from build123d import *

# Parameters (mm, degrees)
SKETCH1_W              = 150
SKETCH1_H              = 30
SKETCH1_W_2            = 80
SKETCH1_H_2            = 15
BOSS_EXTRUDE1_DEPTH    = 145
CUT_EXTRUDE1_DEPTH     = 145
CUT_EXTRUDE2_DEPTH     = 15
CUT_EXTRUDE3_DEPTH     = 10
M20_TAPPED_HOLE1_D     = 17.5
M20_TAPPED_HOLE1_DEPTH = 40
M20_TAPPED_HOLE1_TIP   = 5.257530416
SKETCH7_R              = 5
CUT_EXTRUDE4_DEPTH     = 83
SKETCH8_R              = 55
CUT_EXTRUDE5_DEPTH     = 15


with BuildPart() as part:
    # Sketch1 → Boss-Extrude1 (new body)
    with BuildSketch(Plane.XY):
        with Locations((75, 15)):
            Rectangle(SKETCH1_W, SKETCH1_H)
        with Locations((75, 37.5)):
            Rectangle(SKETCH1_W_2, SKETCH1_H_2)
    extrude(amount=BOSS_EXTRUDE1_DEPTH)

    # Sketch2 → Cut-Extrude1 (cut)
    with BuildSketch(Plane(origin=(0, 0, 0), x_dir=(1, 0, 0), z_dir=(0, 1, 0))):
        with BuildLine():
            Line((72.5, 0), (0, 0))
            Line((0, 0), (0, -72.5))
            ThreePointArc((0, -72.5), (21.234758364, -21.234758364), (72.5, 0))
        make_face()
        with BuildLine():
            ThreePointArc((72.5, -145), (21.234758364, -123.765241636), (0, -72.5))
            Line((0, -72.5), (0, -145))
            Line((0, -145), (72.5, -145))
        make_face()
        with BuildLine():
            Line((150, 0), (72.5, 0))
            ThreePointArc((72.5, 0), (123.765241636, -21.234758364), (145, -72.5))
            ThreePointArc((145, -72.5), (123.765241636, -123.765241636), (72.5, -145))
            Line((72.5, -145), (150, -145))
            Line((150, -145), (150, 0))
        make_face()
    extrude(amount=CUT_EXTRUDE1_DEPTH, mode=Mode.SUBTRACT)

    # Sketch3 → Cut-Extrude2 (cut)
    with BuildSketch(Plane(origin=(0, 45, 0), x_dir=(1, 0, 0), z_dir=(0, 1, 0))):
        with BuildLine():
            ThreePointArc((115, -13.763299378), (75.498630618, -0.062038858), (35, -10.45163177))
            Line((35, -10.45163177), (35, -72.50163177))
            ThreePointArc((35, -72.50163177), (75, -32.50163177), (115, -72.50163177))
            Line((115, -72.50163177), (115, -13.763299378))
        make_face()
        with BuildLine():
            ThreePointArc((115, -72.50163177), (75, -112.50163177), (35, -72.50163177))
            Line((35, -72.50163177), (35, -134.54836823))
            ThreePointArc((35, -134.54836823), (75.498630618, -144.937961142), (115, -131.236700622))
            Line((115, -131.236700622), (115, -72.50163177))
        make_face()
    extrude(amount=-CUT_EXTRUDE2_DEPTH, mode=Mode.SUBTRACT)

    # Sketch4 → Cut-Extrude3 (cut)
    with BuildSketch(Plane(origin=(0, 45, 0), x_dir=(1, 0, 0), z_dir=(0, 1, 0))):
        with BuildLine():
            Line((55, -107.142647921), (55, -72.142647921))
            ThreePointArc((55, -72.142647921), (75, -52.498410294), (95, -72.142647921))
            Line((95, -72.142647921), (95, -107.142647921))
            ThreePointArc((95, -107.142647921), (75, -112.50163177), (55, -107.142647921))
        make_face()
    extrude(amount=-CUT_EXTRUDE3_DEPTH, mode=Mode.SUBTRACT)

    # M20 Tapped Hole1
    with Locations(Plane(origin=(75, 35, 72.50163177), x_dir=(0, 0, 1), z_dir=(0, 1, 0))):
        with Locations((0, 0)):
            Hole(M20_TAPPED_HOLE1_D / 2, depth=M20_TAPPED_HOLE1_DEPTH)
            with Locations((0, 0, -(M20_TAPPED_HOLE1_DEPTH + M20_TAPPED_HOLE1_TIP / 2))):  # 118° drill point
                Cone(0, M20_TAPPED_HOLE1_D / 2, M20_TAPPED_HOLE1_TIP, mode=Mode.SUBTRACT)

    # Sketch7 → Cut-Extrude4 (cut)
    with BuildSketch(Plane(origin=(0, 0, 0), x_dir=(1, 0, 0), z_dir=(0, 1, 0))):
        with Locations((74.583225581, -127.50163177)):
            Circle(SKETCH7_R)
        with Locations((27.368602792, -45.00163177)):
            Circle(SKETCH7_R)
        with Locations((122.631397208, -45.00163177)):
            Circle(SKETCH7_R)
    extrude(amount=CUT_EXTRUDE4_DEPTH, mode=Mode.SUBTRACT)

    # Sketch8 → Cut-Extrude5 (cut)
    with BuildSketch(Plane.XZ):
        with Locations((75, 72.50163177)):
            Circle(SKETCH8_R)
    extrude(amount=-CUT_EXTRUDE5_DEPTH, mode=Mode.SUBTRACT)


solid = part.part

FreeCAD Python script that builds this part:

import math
import FreeCAD as App
import Part
import Sketcher

doc = App.newDocument("Part")
body = doc.addObject("PartDesign::Body", "Body")

# Sketch on XY plane
sketch1 = body.newObject("Sketcher::SketchObject", "Sketch")
sketch1.AttachmentSupport = (doc.getObject("XY_Plane"), [""])
sketch1.MapMode = "FlatFace"
sketch1.addGeometry(Part.LineSegment(App.Vector(0, 30, 0), App.Vector(0, 0, 0)), False)
sketch1.addGeometry(Part.LineSegment(App.Vector(0, 0, 0), App.Vector(150, 0, 0)), False)
sketch1.addGeometry(Part.LineSegment(App.Vector(150, 0, 0), App.Vector(150, 30, 0)), False)
sketch1.addGeometry(Part.LineSegment(App.Vector(150, 30, 0), App.Vector(115, 30, 0)), False)
sketch1.addGeometry(Part.LineSegment(App.Vector(115, 30, 0), App.Vector(115, 45, 0)), False)
sketch1.addGeometry(Part.LineSegment(App.Vector(115, 45, 0), App.Vector(35, 45, 0)), False)
sketch1.addGeometry(Part.LineSegment(App.Vector(35, 45, 0), App.Vector(35, 30, 0)), False)
sketch1.addGeometry(Part.LineSegment(App.Vector(35, 30, 0), App.Vector(0, 30, 0)), False)
sketch1.addConstraint(Sketcher.Constraint("Coincident", 0, 2, 1, 1))
sketch1.addConstraint(Sketcher.Constraint("Coincident", 1, 2, 2, 1))
sketch1.addConstraint(Sketcher.Constraint("Coincident", 2, 2, 3, 1))
sketch1.addConstraint(Sketcher.Constraint("Coincident", 3, 2, 4, 1))
sketch1.addConstraint(Sketcher.Constraint("Coincident", 4, 2, 5, 1))
sketch1.addConstraint(Sketcher.Constraint("Coincident", 5, 2, 6, 1))
sketch1.addConstraint(Sketcher.Constraint("Coincident", 6, 2, 7, 1))
sketch1.addConstraint(Sketcher.Constraint("Coincident", 7, 2, 0, 1))
sketch1.addConstraint(Sketcher.Constraint("Vertical", 0))
sketch1.addConstraint(Sketcher.Constraint("Horizontal", 1))
sketch1.addConstraint(Sketcher.Constraint("Vertical", 2))
sketch1.addConstraint(Sketcher.Constraint("Horizontal", 3))
sketch1.addConstraint(Sketcher.Constraint("Vertical", 4))
sketch1.addConstraint(Sketcher.Constraint("Horizontal", 5))
sketch1.addConstraint(Sketcher.Constraint("Vertical", 6))
sketch1.addConstraint(Sketcher.Constraint("Horizontal", 7))
sketch1.addConstraint(Sketcher.Constraint("Coincident", 0, 2, -1, 1))
sketch1.addConstraint(Sketcher.Constraint("Horizontal", 3, 2, 6, 2))
sketch1.addConstraint(Sketcher.Constraint("Equal", 3, 7))
sketch1.addConstraint(Sketcher.Constraint("DistanceX", 1, 1, 1, 2, 150.0))
sketch1.addConstraint(Sketcher.Constraint("DistanceX", 3, 2, 3, 1, 35.0))
sketch1.addConstraint(Sketcher.Constraint("DistanceY", 0, 2, 0, 1, 30.0))
sketch1.addConstraint(Sketcher.Constraint("DistanceY", 4, 1, 4, 2, 15.0))
pad1 = body.newObject("PartDesign::Pad", "Pad")
pad1.Profile = sketch1
pad1.Length = 145

# Sketch on XZ plane
sketch2 = body.newObject("Sketcher::SketchObject", "Sketch001")
sketch2.AttachmentSupport = (doc.getObject("XZ_Plane"), [""])
sketch2.MapMode = "FlatFace"
sketch2.addGeometry(Part.LineSegment(App.Vector(72, 0, 0), App.Vector(0, 0, 0)), False)
sketch2.addGeometry(Part.LineSegment(App.Vector(0, 0, 0), App.Vector(0, 72, 0)), False)
sketch2.addGeometry(Part.ArcOfCircle(Part.Circle(App.Vector(72, 72, 0), App.Vector(0, 0, 1), 72), math.radians(180), math.radians(270)), False)
sketch2.addGeometry(Part.ArcOfCircle(Part.Circle(App.Vector(72, 72, 0), App.Vector(0, 0, 1), 72), math.radians(90), math.radians(180)), False)
sketch2.addGeometry(Part.LineSegment(App.Vector(0, 72, 0), App.Vector(0, 145, 0)), False)
sketch2.addGeometry(Part.LineSegment(App.Vector(0, 145, 0), App.Vector(72, 145, 0)), False)
sketch2.addGeometry(Part.LineSegment(App.Vector(150, 0, 0), App.Vector(72, 0, 0)), False)
sketch2.addGeometry(Part.ArcOfCircle(Part.Circle(App.Vector(72, 72, 0), App.Vector(0, 0, 1), 72), math.radians(-90), math.radians(0)), False)
sketch2.addGeometry(Part.ArcOfCircle(Part.Circle(App.Vector(72, 72, 0), App.Vector(0, 0, 1), 72), math.radians(0), math.radians(90)), False)
sketch2.addGeometry(Part.LineSegment(App.Vector(72, 145, 0), App.Vector(150, 145, 0)), False)
sketch2.addGeometry(Part.LineSegment(App.Vector(150, 145, 0), App.Vector(150, 0, 0)), False)
sketch2.addConstraint(Sketcher.Constraint("Coincident", 0, 2, 1, 1))
sketch2.addConstraint(Sketcher.Constraint("Tangent", 1, 2, 2, 1))
sketch2.addConstraint(Sketcher.Constraint("Tangent", 2, 2, 0, 1))
sketch2.addConstraint(Sketcher.Constraint("Tangent", 3, 2, 4, 1))
sketch2.addConstraint(Sketcher.Constraint("Coincident", 4, 2, 5, 1))
sketch2.addConstraint(Sketcher.Constraint("Tangent", 5, 2, 3, 1))
sketch2.addConstraint(Sketcher.Constraint("Tangent", 6, 2, 7, 1))
sketch2.addConstraint(Sketcher.Constraint("Tangent", 7, 2, 8, 1))
sketch2.addConstraint(Sketcher.Constraint("Tangent", 8, 2, 9, 1))
sketch2.addConstraint(Sketcher.Constraint("Coincident", 9, 2, 10, 1))
sketch2.addConstraint(Sketcher.Constraint("Coincident", 10, 2, 6, 1))
sketch2.addConstraint(Sketcher.Constraint("Horizontal", 0))
sketch2.addConstraint(Sketcher.Constraint("Vertical", 1))
sketch2.addConstraint(Sketcher.Constraint("Vertical", 4))
sketch2.addConstraint(Sketcher.Constraint("Horizontal", 5))
sketch2.addConstraint(Sketcher.Constraint("Horizontal", 6))
sketch2.addConstraint(Sketcher.Constraint("Horizontal", 9))
sketch2.addConstraint(Sketcher.Constraint("Vertical", 10))
sketch2.addConstraint(Sketcher.Constraint("Coincident", 0, 2, -1, 1))
sketch2.addConstraint(Sketcher.Constraint("Coincident", 3, 3, 2, 3))
sketch2.addConstraint(Sketcher.Constraint("Coincident", 7, 3, 2, 3))
sketch2.addConstraint(Sketcher.Constraint("Coincident", 8, 2, 5, 2))
sketch2.addConstraint(Sketcher.Constraint("Equal", 2, 3))
sketch2.addConstraint(Sketcher.Constraint("Horizontal", 3, 2, 7, 2))
sketch2.addConstraint(Sketcher.Constraint("Radius", 2, 72.5))
sketch2.addConstraint(Sketcher.Constraint("DistanceX", 6, 2, 6, 1, 77.5))
pocket1 = body.newObject("PartDesign::Pocket", "Pocket")
pocket1.Profile = sketch2
pocket1.Length = 145

# Sketch on XZ plane
sketch3 = body.newObject("Sketcher::SketchObject", "Sketch002")
sketch3.AttachmentSupport = (doc.getObject("XZ_Plane"), [""])
sketch3.MapMode = "FlatFace"
sketch3.AttachmentOffset = App.Placement(App.Vector(0, 0, -45), App.Rotation())
sketch3.addGeometry(Part.ArcOfCircle(Part.Circle(App.Vector(72, 72, 0), App.Vector(0, 0, 1), 72), math.radians(-121), math.radians(-54)), False)
sketch3.addGeometry(Part.LineSegment(App.Vector(35, 10, 0), App.Vector(35, 73, 0)), False)
sketch3.addGeometry(Part.ArcOfCircle(Part.Circle(App.Vector(75, 73, 0), App.Vector(0, 0, 1), 40), math.radians(180), math.radians(360)), False)
sketch3.addGeometry(Part.LineSegment(App.Vector(115, 73, 0), App.Vector(115, 14, 0)), False)
sketch3.addGeometry(Part.ArcOfCircle(Part.Circle(App.Vector(75, 73, 0), App.Vector(0, 0, 1), 40), math.radians(0), math.radians(180)), False)
sketch3.addGeometry(Part.LineSegment(App.Vector(35, 73, 0), App.Vector(35, 135, 0)), False)
sketch3.addGeometry(Part.ArcOfCircle(Part.Circle(App.Vector(72, 72, 0), App.Vector(0, 0, 1), 72), math.radians(54), math.radians(121)), False)
sketch3.addGeometry(Part.LineSegment(App.Vector(115, 131, 0), App.Vector(115, 73, 0)), False)
sketch3.addConstraint(Sketcher.Constraint("Coincident", 0, 1, 1, 1))
sketch3.addConstraint(Sketcher.Constraint("Tangent", 1, 2, 2, 1))
sketch3.addConstraint(Sketcher.Constraint("Tangent", 2, 2, 3, 1))
sketch3.addConstraint(Sketcher.Constraint("Coincident", 3, 2, 0, 2))
sketch3.addConstraint(Sketcher.Constraint("Tangent", 4, 2, 5, 1))
sketch3.addConstraint(Sketcher.Constraint("Coincident", 5, 2, 6, 2))
sketch3.addConstraint(Sketcher.Constraint("Coincident", 6, 1, 7, 1))
sketch3.addConstraint(Sketcher.Constraint("Tangent", 7, 2, 4, 1))
sketch3.addConstraint(Sketcher.Constraint("Vertical", 1))
sketch3.addConstraint(Sketcher.Constraint("Vertical", 3))
sketch3.addConstraint(Sketcher.Constraint("Vertical", 5))
sketch3.addConstraint(Sketcher.Constraint("Vertical", 7))
sketch3.addConstraint(Sketcher.Constraint("Coincident", 4, 3, 2, 3))
sketch3.addConstraint(Sketcher.Constraint("Coincident", 6, 3, 0, 3))
sketch3.addConstraint(Sketcher.Constraint("Equal", 2, 4))
sketch3.addConstraint(Sketcher.Constraint("Equal", 0, 6))
sketch3.addConstraint(Sketcher.Constraint("Radius", 2, 40.0))
sketch3.addConstraint(Sketcher.Constraint("Radius", 0, 72.5))
sketch3.addConstraint(Sketcher.Constraint("DistanceX", -1, 1, 2, 3, 75.0))
sketch3.addConstraint(Sketcher.Constraint("DistanceY", 1, 1, 1, 2, 62.05))
sketch3.addConstraint(Sketcher.Constraint("DistanceX", -1, 1, 0, 3, 72.5))
sketch3.addConstraint(Sketcher.Constraint("DistanceY", -1, 1, 0, 3, 72.5))
pocket2 = body.newObject("PartDesign::Pocket", "Pocket001")
pocket2.Profile = sketch3
pocket2.Length = 15
pocket2.Reversed = True

# Sketch on XZ plane
sketch4 = body.newObject("Sketcher::SketchObject", "Sketch003")
sketch4.AttachmentSupport = (doc.getObject("XZ_Plane"), [""])
sketch4.MapMode = "FlatFace"
sketch4.AttachmentOffset = App.Placement(App.Vector(0, 0, -45), App.Rotation())
sketch4.addGeometry(Part.LineSegment(App.Vector(55, 72, 0), App.Vector(55, 107, 0)), False)
sketch4.addGeometry(Part.ArcOfCircle(Part.Circle(App.Vector(75, 73, 0), App.Vector(0, 0, 1), 40), math.radians(60), math.radians(120)), False)
sketch4.addGeometry(Part.LineSegment(App.Vector(95, 107, 0), App.Vector(95, 72, 0)), False)
sketch4.addGeometry(Part.ArcOfCircle(Part.Circle(App.Vector(75, 73, 0), App.Vector(0, 0, 1), 20), math.radians(-179), math.radians(-1)), False)
sketch4.addConstraint(Sketcher.Constraint("Coincident", 0, 2, 1, 2))
sketch4.addConstraint(Sketcher.Constraint("Coincident", 1, 1, 2, 1))
sketch4.addConstraint(Sketcher.Constraint("Coincident", 2, 2, 3, 2))
sketch4.addConstraint(Sketcher.Constraint("Coincident", 3, 1, 0, 1))
sketch4.addConstraint(Sketcher.Constraint("Vertical", 0))
sketch4.addConstraint(Sketcher.Constraint("Vertical", 2))
sketch4.addConstraint(Sketcher.Constraint("Coincident", 3, 3, 1, 3))
sketch4.addConstraint(Sketcher.Constraint("Horizontal", 2, 2, 3, 1))
sketch4.addConstraint(Sketcher.Constraint("Radius", 1, 40.0))
sketch4.addConstraint(Sketcher.Constraint("DistanceY", 0, 1, 0, 2, 35.0))
sketch4.addConstraint(Sketcher.Constraint("DistanceX", -1, 1, 1, 3, 75.0))
sketch4.addConstraint(Sketcher.Constraint("DistanceX", -1, 1, 0, 2, 55.0))
sketch4.addConstraint(Sketcher.Constraint("DistanceY", -1, 1, 1, 3, 72.501632))
pocket3 = body.newObject("PartDesign::Pocket", "Pocket002")
pocket3.Profile = sketch4
pocket3.Length = 10
pocket3.Reversed = True

# Sketch on XZ plane
sketch5 = body.newObject("Sketcher::SketchObject", "Sketch004")
sketch5.AttachmentSupport = (doc.getObject("XZ_Plane"), [""])
sketch5.MapMode = "FlatFace"
sketch5.AttachmentOffset = App.Placement(App.Vector(0, 0, -35), App.Rotation())
sketch5.addGeometry(Part.Circle(App.Vector(75, 73, 0), App.Vector(0, 0, 1), 9), False)
sketch5.addConstraint(Sketcher.Constraint("Diameter", 0, 17.5))
sketch5.addConstraint(Sketcher.Constraint("DistanceX", -1, 1, 0, 3, 75.0))
sketch5.addConstraint(Sketcher.Constraint("DistanceY", -1, 1, 0, 3, 72.501632))
doc.recompute()
hole = body.newObject("PartDesign::Hole", "Hole")
hole.Profile = sketch5
hole.ThreadType = "None"
hole.Diameter = 17.5
hole.DepthType = "Dimension"
hole.Depth = 40
hole.DrillPoint = "Angled"
hole.DrillPointAngle = 118
hole.Reversed = True

# Sketch on XZ plane
sketch6 = body.newObject("Sketcher::SketchObject", "Sketch005")
sketch6.AttachmentSupport = (doc.getObject("XZ_Plane"), [""])
sketch6.MapMode = "FlatFace"
sketch6.addGeometry(Part.Circle(App.Vector(75, 128, 0), App.Vector(0, 0, 1), 5), False)
sketch6.addGeometry(Part.Circle(App.Vector(27, 45, 0), App.Vector(0, 0, 1), 5), False)
sketch6.addGeometry(Part.Circle(App.Vector(123, 45, 0), App.Vector(0, 0, 1), 5), False)
sketch6.addConstraint(Sketcher.Constraint("Equal", 0, 1))
sketch6.addConstraint(Sketcher.Constraint("Equal", 1, 2))
sketch6.addConstraint(Sketcher.Constraint("Horizontal", 1, 3, 2, 3))
sketch6.addConstraint(Sketcher.Constraint("Diameter", 0, 10.0))
sketch6.addConstraint(Sketcher.Constraint("DistanceY", 1, 3, 0, 3, 82.5))
sketch6.addConstraint(Sketcher.Constraint("DistanceY", -1, 1, 0, 3, 127.501632))
sketch6.addConstraint(Sketcher.Constraint("DistanceX", 0, 3, 2, 3, 48.048172))
sketch6.addConstraint(Sketcher.Constraint("DistanceX", -1, 1, 0, 3, 74.583226))
sketch6.addConstraint(Sketcher.Constraint("DistanceX", -1, 1, 1, 3, 27.368603))
pocket4 = body.newObject("PartDesign::Pocket", "Pocket003")
pocket4.Profile = sketch6
pocket4.Length = 83

# Sketch on XZ plane
sketch7 = body.newObject("Sketcher::SketchObject", "Sketch006")
sketch7.AttachmentSupport = (doc.getObject("XZ_Plane"), [""])
sketch7.MapMode = "FlatFace"
sketch7.addGeometry(Part.Circle(App.Vector(75, 73, 0), App.Vector(0, 0, 1), 55), False)
sketch7.addConstraint(Sketcher.Constraint("Diameter", 0, 110.0))
sketch7.addConstraint(Sketcher.Constraint("DistanceX", -1, 1, 0, 3, 75.0))
sketch7.addConstraint(Sketcher.Constraint("DistanceY", -1, 1, 0, 3, 72.501632))
pocket5 = body.newObject("PartDesign::Pocket", "Pocket004")
pocket5.Profile = sketch7
pocket5.Length = 15

doc.recompute()
